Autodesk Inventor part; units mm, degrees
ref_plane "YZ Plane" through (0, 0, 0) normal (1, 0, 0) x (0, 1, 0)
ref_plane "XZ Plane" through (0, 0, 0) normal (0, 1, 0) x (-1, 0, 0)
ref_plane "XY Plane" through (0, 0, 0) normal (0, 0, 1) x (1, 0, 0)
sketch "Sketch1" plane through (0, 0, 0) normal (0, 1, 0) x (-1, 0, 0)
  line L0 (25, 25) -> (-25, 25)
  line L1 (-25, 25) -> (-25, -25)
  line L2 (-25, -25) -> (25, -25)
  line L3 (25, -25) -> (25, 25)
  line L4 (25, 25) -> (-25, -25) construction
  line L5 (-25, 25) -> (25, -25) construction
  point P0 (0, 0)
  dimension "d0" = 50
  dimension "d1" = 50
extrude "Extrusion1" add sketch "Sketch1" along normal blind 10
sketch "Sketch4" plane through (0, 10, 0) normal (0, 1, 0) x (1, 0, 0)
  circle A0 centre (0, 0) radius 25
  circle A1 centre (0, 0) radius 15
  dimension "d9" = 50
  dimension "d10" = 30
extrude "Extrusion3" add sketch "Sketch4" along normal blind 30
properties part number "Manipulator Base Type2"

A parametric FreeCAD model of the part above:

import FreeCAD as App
import Part
import Sketcher
from FreeCAD import Vector


def add_polygon(sketch, points):
    """Adds a closed chain of lines whose ends are joined by coincident constraints."""
    first, n = sketch.GeometryCount, len(points)
    for a, b in zip(points, points[1:] + points[:1]):
        sketch.addGeometry(Part.LineSegment(App.Vector(*a, 0), App.Vector(*b, 0)), False)
    for i in range(n):
        sketch.addConstraint(Sketcher.Constraint("Coincident", first + i, 2, first + (i + 1) % n, 1))

doc = App.newDocument("Part")
params = doc.addObject("Spreadsheet::Sheet", "Params")
for row, (alias, value) in enumerate([
    ("sketch1_width", "50 mm"),
    ("pad1_length", "10 mm"),
    ("sketch2_diameter", "50 mm"),
    ("sketch2_diameter2", "30 mm"),
    ("pad2_length", "30 mm"),
], start=1):
    params.set(f"A{row}", alias)
    params.set(f"B{row}", "=" + value)
    params.setAlias(f"B{row}", alias)

body = doc.addObject("PartDesign::Body", "Body")

sketch1 = body.newObject("Sketcher::SketchObject", "Sketch")
sketch1.AttachmentSupport = (doc.getObject("XZ_Plane"), [""])
sketch1.MapMode = "FlatFace"
add_polygon(sketch1, [(-25, -25), (-25, 25), (25, 25), (25, -25)])
sketch1.addConstraint([
    Sketcher.Constraint("Vertical", 0),
    Sketcher.Constraint("Horizontal", 1),
    Sketcher.Constraint("Vertical", 2),
    Sketcher.Constraint("Horizontal", 3),
    Sketcher.Constraint("Symmetric", 0, 2, 2, 2, -1, 1),
    Sketcher.Constraint("Equal", 3, 0),
    Sketcher.Constraint("DistanceX", 1, 1, 1, 2, 50.0),
])
sketch1.setExpression("Constraints[10]", "Params.sketch1_width")
pad1 = body.newObject("PartDesign::Pad", "Pad")
pad1.Profile = sketch1
pad1.setExpression("Length", "Params.pad1_length")
pad1.Reversed = True

sketch2 = body.newObject("Sketcher::SketchObject", "Sketch001")
sketch2.AttachmentSupport = (doc.getObject("XZ_Plane"), [""])
sketch2.MapMode = "FlatFace"
sketch2.AttachmentOffset = App.Placement(Vector(0, 0, -10), App.Rotation())
sketch2.addGeometry([
    Part.Circle(Vector(0, 0, 0), Vector(0, 0, 1), 25),
    Part.Circle(Vector(0, 0, 0), Vector(0, 0, 1), 15),
], False)
sketch2.addConstraint([
    Sketcher.Constraint("Coincident", 0, 3, -1, 1),
    Sketcher.Constraint("Coincident", 1, 3, -1, 1),
    Sketcher.Constraint("Diameter", 0, 50.0),
    Sketcher.Constraint("Diameter", 1, 30.0),
])
sketch2.setExpression("Constraints[2]", "Params.sketch2_diameter")
sketch2.setExpression("Constraints[3]", "Params.sketch2_diameter2")
pad2 = body.newObject("PartDesign::Pad", "Pad001")
pad2.Profile = sketch2
pad2.setExpression("Length", "Params.pad2_length")
pad2.Reversed = True

doc.recompute()
